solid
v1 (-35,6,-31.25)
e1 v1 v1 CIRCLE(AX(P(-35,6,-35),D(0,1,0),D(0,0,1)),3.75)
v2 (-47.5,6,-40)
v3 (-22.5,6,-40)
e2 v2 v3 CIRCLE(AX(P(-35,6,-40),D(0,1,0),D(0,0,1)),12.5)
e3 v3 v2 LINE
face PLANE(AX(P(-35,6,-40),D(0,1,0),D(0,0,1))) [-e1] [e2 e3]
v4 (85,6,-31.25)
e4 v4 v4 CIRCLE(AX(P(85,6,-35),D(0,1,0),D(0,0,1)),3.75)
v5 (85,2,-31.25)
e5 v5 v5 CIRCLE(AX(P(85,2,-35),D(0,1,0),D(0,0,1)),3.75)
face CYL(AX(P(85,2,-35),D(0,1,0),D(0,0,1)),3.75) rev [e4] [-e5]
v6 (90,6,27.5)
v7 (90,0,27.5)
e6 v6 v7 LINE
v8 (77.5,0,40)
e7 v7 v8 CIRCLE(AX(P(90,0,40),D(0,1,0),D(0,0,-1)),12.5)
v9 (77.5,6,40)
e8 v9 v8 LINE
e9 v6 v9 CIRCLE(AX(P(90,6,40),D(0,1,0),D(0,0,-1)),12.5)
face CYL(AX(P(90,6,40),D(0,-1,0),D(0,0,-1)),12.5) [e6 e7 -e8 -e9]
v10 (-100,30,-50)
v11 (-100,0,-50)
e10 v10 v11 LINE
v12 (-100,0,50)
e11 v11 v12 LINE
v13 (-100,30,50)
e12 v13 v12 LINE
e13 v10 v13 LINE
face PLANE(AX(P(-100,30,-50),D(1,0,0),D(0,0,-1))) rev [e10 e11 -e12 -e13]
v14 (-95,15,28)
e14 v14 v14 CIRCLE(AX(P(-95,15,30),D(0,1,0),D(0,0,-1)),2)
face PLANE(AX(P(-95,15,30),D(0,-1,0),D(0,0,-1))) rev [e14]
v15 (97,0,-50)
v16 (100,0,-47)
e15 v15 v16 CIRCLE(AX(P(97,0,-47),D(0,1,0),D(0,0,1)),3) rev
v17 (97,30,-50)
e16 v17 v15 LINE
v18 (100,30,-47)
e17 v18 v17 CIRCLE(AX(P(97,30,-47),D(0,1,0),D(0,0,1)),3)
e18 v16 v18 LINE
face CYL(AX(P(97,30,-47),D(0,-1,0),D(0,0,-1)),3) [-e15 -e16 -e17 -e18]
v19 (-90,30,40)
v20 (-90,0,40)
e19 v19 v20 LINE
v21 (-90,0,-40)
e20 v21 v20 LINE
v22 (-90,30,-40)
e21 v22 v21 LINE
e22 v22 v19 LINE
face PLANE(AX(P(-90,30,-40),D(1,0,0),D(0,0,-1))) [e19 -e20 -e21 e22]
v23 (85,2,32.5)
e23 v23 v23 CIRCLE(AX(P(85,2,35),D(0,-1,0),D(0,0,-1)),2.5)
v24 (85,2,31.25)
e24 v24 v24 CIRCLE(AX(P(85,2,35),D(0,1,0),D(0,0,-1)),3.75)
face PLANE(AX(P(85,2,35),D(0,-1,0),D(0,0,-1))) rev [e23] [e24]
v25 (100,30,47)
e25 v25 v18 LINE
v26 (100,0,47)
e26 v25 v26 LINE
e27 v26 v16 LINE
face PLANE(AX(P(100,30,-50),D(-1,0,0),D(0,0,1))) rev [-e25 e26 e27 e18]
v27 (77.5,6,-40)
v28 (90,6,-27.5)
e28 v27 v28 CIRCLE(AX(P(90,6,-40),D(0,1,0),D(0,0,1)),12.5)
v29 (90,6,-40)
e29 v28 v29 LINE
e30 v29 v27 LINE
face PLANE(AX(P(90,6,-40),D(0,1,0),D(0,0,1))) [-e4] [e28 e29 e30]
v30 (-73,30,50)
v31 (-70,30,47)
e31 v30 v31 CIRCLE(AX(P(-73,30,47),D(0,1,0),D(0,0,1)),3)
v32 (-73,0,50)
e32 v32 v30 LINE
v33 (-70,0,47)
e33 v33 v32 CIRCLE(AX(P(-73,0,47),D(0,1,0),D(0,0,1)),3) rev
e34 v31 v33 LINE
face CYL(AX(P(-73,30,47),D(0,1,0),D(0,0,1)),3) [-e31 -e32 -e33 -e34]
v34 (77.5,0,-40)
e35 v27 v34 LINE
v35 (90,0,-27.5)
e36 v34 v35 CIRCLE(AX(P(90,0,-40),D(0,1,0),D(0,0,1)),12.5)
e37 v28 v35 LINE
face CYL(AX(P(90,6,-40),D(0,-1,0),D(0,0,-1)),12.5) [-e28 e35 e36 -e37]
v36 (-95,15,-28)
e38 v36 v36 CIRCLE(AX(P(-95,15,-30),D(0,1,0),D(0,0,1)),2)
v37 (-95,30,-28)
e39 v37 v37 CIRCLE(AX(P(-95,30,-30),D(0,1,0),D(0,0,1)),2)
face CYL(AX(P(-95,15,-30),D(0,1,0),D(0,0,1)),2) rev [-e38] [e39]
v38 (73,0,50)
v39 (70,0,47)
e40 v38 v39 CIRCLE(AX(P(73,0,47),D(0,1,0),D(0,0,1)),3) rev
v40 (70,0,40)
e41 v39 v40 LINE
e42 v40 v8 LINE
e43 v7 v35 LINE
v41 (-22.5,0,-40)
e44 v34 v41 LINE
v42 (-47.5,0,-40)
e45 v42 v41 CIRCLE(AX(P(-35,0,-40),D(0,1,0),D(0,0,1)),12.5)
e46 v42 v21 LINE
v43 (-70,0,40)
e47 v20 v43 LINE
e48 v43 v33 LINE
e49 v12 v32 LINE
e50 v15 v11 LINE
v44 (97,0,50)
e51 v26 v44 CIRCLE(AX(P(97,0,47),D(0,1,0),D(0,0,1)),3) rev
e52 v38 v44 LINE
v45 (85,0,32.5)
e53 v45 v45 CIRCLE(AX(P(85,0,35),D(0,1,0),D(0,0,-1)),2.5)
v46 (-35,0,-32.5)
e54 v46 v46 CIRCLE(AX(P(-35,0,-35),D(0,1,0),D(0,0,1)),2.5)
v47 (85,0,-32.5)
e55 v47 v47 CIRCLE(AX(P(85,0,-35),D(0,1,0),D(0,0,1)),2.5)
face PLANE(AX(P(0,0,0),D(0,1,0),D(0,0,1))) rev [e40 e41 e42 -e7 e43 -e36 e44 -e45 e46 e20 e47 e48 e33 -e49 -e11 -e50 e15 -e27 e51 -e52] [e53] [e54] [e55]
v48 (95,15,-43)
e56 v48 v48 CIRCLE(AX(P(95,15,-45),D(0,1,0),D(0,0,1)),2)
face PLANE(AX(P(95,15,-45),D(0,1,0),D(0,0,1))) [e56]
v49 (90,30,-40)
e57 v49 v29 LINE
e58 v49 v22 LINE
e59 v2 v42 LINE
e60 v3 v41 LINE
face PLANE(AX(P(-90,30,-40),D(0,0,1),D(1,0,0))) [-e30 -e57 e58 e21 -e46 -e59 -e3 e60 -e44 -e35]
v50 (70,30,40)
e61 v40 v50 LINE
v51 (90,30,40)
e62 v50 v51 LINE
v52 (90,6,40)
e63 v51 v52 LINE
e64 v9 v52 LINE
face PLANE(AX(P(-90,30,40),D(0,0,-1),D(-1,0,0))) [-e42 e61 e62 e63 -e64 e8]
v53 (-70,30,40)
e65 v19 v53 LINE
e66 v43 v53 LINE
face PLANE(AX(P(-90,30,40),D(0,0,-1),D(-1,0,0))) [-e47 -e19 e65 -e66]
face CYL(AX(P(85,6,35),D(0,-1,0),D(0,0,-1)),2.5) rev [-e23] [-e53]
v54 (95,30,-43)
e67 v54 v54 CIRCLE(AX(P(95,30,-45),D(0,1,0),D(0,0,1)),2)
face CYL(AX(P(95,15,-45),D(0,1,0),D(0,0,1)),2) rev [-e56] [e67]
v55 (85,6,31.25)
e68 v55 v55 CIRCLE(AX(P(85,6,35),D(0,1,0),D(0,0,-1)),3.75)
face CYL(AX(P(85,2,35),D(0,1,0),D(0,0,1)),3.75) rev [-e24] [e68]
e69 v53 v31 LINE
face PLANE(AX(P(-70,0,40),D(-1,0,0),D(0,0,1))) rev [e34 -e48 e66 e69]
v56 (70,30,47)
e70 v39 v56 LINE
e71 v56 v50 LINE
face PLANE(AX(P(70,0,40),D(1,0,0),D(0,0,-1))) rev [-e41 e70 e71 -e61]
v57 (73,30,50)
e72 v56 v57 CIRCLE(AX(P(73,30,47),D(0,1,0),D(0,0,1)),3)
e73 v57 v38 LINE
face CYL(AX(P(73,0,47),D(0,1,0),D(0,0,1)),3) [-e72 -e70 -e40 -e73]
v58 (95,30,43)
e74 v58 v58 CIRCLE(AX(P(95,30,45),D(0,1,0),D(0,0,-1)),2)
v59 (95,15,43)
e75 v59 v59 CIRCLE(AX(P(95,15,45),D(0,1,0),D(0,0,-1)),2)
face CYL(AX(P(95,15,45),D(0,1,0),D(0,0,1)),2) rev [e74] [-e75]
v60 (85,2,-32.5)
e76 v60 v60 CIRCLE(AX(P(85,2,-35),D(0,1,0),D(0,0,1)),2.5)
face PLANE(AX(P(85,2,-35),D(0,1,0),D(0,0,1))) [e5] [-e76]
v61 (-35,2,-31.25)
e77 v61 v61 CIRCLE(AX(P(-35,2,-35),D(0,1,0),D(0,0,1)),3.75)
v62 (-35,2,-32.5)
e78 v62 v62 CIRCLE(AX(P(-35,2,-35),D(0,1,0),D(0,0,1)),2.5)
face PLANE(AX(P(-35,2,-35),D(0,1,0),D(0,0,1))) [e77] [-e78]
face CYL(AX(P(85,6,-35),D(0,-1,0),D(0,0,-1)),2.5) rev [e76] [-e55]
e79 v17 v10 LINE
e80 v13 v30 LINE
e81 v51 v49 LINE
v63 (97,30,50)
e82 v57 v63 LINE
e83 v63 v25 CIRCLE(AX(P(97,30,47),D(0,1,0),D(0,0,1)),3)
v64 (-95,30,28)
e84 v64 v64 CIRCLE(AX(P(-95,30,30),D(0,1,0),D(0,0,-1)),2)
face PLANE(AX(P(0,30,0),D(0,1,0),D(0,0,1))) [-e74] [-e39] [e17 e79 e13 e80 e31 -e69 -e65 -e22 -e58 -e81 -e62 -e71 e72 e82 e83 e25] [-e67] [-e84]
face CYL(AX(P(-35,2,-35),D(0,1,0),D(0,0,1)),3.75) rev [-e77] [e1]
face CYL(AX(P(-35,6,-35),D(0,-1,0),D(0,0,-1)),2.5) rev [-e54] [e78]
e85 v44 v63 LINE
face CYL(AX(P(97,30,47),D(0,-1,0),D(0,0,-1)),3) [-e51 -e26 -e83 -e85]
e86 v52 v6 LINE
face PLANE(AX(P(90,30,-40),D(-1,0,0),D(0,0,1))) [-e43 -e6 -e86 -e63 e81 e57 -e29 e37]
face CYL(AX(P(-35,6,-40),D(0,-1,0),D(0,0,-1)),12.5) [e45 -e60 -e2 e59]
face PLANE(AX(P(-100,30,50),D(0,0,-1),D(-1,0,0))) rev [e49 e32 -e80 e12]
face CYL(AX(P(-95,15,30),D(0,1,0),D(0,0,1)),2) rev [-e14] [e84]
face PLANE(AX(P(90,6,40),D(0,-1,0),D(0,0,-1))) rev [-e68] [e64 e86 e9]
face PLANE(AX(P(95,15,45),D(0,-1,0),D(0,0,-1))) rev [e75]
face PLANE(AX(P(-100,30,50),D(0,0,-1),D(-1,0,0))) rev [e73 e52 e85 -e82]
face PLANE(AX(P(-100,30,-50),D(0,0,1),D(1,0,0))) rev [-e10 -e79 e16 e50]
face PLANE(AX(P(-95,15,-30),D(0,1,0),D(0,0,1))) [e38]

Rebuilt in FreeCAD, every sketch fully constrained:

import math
import FreeCAD as App
import Part
import Sketcher

V = App.Vector
Q = App.Units.Quantity


def edges_at(feature, points):
    """Names of the edges that pass closest to the given points."""
    edges = feature.Shape.Edges
    near = lambda p: min(range(len(edges)), key=lambda i: edges[i].distToShape(Part.Vertex(*p))[0])
    return sorted({f"Edge{near(p) + 1}" for p in points})


def add_polygon(sketch, points):
    """Adds a closed chain of lines whose ends are joined by coincident constraints."""
    first, n = sketch.GeometryCount, len(points)
    for a, b in zip(points, points[1:] + points[:1]):
        sketch.addGeometry(Part.LineSegment(App.Vector(*a, 0), App.Vector(*b, 0)), False)
    for i in range(n):
        sketch.addConstraint(Sketcher.Constraint("Coincident", first + i, 2, first + (i + 1) % n, 1))

doc = App.newDocument("Part")
params = doc.addObject("Spreadsheet::Sheet", "Params")
for row, (alias, value) in enumerate([
    ("sketch1_width", "200 mm"),
    ("sketch1_width2", "180 mm"),
    ("sketch1_height", "100 mm"),
    ("sketch1_height2", "80 mm"),
    ("pad1_length", "30 mm"),
    ("sketch2_diameter", "5 mm"),
    ("sketch2_radius", "12.5 mm"),
    ("pad2_length", "6 mm"),
    ("sketch3_diameter", "7.5 mm"),
    ("pocket1_length", "4 mm"),
    ("sketch4_diameter", "4 mm"),
    ("pocket2_length", "15 mm"),
    ("sketch5_width", "140 mm"),
    ("sketch5_height", "10 mm"),
    ("fillet_radius", "3 mm"),
], start=1):
    params.set(f"A{row}", alias)
    params.set(f"B{row}", "=" + value)
    params.setAlias(f"B{row}", alias)

body = doc.addObject("PartDesign::Body", "Body")

# Sketch on XZ plane
sketch1 = body.newObject("Sketcher::SketchObject", "Sketch")
sketch1.AttachmentSupport = (doc.getObject("XZ_Plane"), [""])
sketch1.MapMode = "FlatFace"
add_polygon(sketch1, [(-100, -50), (-100, 50), (100, 50), (100, -50)])  # lines 0-3
add_polygon(sketch1, [(90, 40), (-90, 40), (-90, -40), (90, -40)])  # lines 4-7
sketch1.addConstraint([
    Sketcher.Constraint("Vertical", 0),
    Sketcher.Constraint("Horizontal", 1),
    Sketcher.Constraint("Vertical", 2),
    Sketcher.Constraint("Horizontal", 3),
    Sketcher.Constraint("Horizontal", 4),
    Sketcher.Constraint("Vertical", 5),
    Sketcher.Constraint("Horizontal", 6),
    Sketcher.Constraint("Vertical", 7),
    Sketcher.Constraint("Symmetric", 0, 2, 2, 2, -1, 1),
    Sketcher.Constraint("Symmetric", 4, 2, 6, 2, -1, 1),
    Sketcher.Constraint("DistanceX", 1, 1, 1, 2, Q("200 mm")),
    Sketcher.Constraint("DistanceX", 4, 2, 4, 1, Q("180 mm")),
    Sketcher.Constraint("DistanceY", 0, 1, 0, 2, Q("100 mm")),
    Sketcher.Constraint("DistanceY", 5, 2, 5, 1, Q("80 mm")),
])
sketch1.setExpression("Constraints[18]", "Params.sketch1_width")
sketch1.setExpression("Constraints[19]", "Params.sketch1_width2")
sketch1.setExpression("Constraints[20]", "Params.sketch1_height")
sketch1.setExpression("Constraints[21]", "Params.sketch1_height2")
pad1 = body.newObject("PartDesign::Pad", "Pad")
pad1.Profile = sketch1
pad1.setExpression("Length", "Params.pad1_length")
pad1.Reversed = True

# Sketch on XZ plane
sketch2 = body.newObject("Sketcher::SketchObject", "Sketch001")
sketch2.AttachmentSupport = (doc.getObject("XZ_Plane"), [""])
sketch2.MapMode = "FlatFace"
sketch2.addGeometry([
    Part.LineSegment(V(90, -40, 0), V(77.5, -40, 0)),  # 0
    Part.ArcOfCircle(Part.Circle(V(90, -40, 0), V(0, 0, 1), 12.5), math.radians(90), math.radians(180)),  # 1
    Part.LineSegment(V(90, -27.5, 0), V(90, -40, 0)),  # 2
    Part.Circle(V(85, -35, 0), V(0, 0, 1), 2.5),  # 3
    Part.LineSegment(V(90, 40, 0), V(90, 27.5, 0)),  # 4
    Part.ArcOfCircle(Part.Circle(V(90, 40, 0), V(0, 0, 1), 12.5), math.radians(180), math.radians(270)),  # 5
    Part.LineSegment(V(77.5, 40, 0), V(90, 40, 0)),  # 6
    Part.Circle(V(85, 35, 0), V(0, 0, 1), 2.5),  # 7
    Part.LineSegment(V(-22.5, -40, 0), V(-47.5, -40, 0)),  # 8
    Part.ArcOfCircle(Part.Circle(V(-35, -40, 0), V(0, 0, 1), 12.5), math.radians(0), math.radians(180)),  # 9
    Part.Circle(V(-35, -35, 0), V(0, 0, 1), 2.5),  # 10
], False)
sketch2.addConstraint([
    Sketcher.Constraint("Coincident", 0, 2, 1, 2),
    Sketcher.Constraint("Coincident", 1, 1, 2, 1),
    Sketcher.Constraint("Coincident", 2, 2, 0, 1),
    Sketcher.Constraint("Coincident", 4, 2, 5, 2),
    Sketcher.Constraint("Coincident", 5, 1, 6, 1),
    Sketcher.Constraint("Coincident", 6, 2, 4, 1),
    Sketcher.Constraint("Coincident", 8, 1, 9, 1),
    Sketcher.Constraint("Coincident", 9, 2, 8, 2),
    Sketcher.Constraint("Horizontal", 0),
    Sketcher.Constraint("Vertical", 2),
    Sketcher.Constraint("Vertical", 4),
    Sketcher.Constraint("Horizontal", 6),
    Sketcher.Constraint("Horizontal", 8),
    Sketcher.Constraint("Coincident", 2, 2, 1, 3),
    Sketcher.Constraint("Coincident", 6, 2, 5, 3),
    Sketcher.Constraint("Equal", 1, 5),
    Sketcher.Constraint("Equal", 3, 7),
    Sketcher.Constraint("Equal", 5, 9),
    Sketcher.Constraint("Equal", 7, 10),
    Sketcher.Constraint("Symmetric", 1, 3, 5, 3, -1),
    Sketcher.Constraint("Symmetric", 3, 3, 7, 3, -1),
    Sketcher.Constraint("Horizontal", 1, 3, 9, 3),
    Sketcher.Constraint("Horizontal", 3, 3, 10, 3),
    Sketcher.Constraint("Horizontal", 2, 2, 8, 1),
    Sketcher.Constraint("Vertical", 9, 3, 10, 3),
    Sketcher.Constraint("Diameter", 3, Q("5 mm")),
    Sketcher.Constraint("Radius", 1, Q("12.5 mm")),
    Sketcher.Constraint("DistanceX", -1, 1, 1, 3, Q("90 mm")),
    Sketcher.Constraint("DistanceY", 1, 3, -1, 1, Q("40 mm")),
    Sketcher.Constraint("DistanceX", -1, 1, 3, 3, Q("85 mm")),
    Sketcher.Constraint("DistanceY", 3, 3, -1, 1, Q("35 mm")),
    Sketcher.Constraint("DistanceX", 9, 3, -1, 1, Q("35 mm")),
])
sketch2.setExpression("Constraints[25]", "Params.sketch2_diameter")
sketch2.setExpression("Constraints[26]", "Params.sketch2_radius")
pad2 = body.newObject("PartDesign::Pad", "Pad001")
pad2.Profile = sketch2
pad2.setExpression("Length", "Params.pad2_length")
pad2.Reversed = True

# Sketch on XZ plane
sketch3 = body.newObject("Sketcher::SketchObject", "Sketch002")
sketch3.AttachmentSupport = (doc.getObject("XZ_Plane"), [""])
sketch3.MapMode = "FlatFace"
sketch3.AttachmentOffset = App.Placement(V(0, 0, -6), App.Rotation())
sketch3.addGeometry([
    Part.Circle(V(-35, -35, 0), V(0, 0, 1), 3.8),
    Part.Circle(V(85, -35, 0), V(0, 0, 1), 3.8),
    Part.Circle(V(85, 35, 0), V(0, 0, 1), 3.8),
], False)
sketch3.addConstraint([
    Sketcher.Constraint("Equal", 0, 1),
    Sketcher.Constraint("Equal", 1, 2),
    Sketcher.Constraint("Symmetric", 1, 3, 2, 3, -1),
    Sketcher.Constraint("Horizontal", 0, 3, 1, 3),
    Sketcher.Constraint("Diameter", 0, Q("7.5 mm")),
    Sketcher.Constraint("DistanceX", 0, 3, -1, 1, Q("35 mm")),
    Sketcher.Constraint("DistanceY", 0, 3, -1, 1, Q("35 mm")),
    Sketcher.Constraint("DistanceX", -1, 1, 1, 3, Q("85 mm")),
])
sketch3.setExpression("Constraints[4]", "Params.sketch3_diameter")
pocket1 = body.newObject("PartDesign::Pocket", "Pocket")
pocket1.Profile = sketch3
pocket1.setExpression("Length", "Params.pocket1_length")
pocket1.Reversed = True

# Sketch on XZ plane
sketch4 = body.newObject("Sketcher::SketchObject", "Sketch003")
sketch4.AttachmentSupport = (doc.getObject("XZ_Plane"), [""])
sketch4.MapMode = "FlatFace"
sketch4.AttachmentOffset = App.Placement(V(0, 0, -30), App.Rotation())
sketch4.addGeometry([
    Part.Circle(V(95, -45, 0), V(0, 0, 1), 2),
    Part.Circle(V(95, 45, 0), V(0, 0, 1), 2),
    Part.Circle(V(-95, -30, 0), V(0, 0, 1), 2),
    Part.Circle(V(-95, 30, 0), V(0, 0, 1), 2),
], False)
sketch4.addConstraint([
    Sketcher.Constraint("Equal", 0, 1),
    Sketcher.Constraint("Equal", 1, 2),
    Sketcher.Constraint("Equal", 2, 3),
    Sketcher.Constraint("Symmetric", 0, 3, 1, 3, -1),
    Sketcher.Constraint("Symmetric", 2, 3, 3, 3, -1),
    Sketcher.Constraint("Diameter", 0, Q("4 mm")),
    Sketcher.Constraint("DistanceX", -1, 1, 0, 3, Q("95 mm")),
    Sketcher.Constraint("DistanceY", 0, 3, -1, 1, Q("45 mm")),
    Sketcher.Constraint("DistanceX", 2, 3, -1, 1, Q("95 mm")),
    Sketcher.Constraint("DistanceY", 2, 3, -1, 1, Q("30 mm")),
])
sketch4.setExpression("Constraints[5]", "Params.sketch4_diameter")
pocket2 = body.newObject("PartDesign::Pocket", "Pocket001")
pocket2.Profile = sketch4
pocket2.setExpression("Length", "Params.pocket2_length")
pocket2.Reversed = True

# Sketch on XZ plane
sketch5 = body.newObject("Sketcher::SketchObject", "Sketch004")
sketch5.AttachmentSupport = (doc.getObject("XZ_Plane"), [""])
sketch5.MapMode = "FlatFace"
sketch5.AttachmentOffset = App.Placement(V(0, 0, -30), App.Rotation())
add_polygon(sketch5, [(-70, 40), (-70, 50), (70, 50), (70, 40)])  # lines 0-3
sketch5.addConstraint([
    Sketcher.Constraint("Vertical", 0),
    Sketcher.Constraint("Horizontal", 1),
    Sketcher.Constraint("Vertical", 2),
    Sketcher.Constraint("Horizontal", 3),
    Sketcher.Constraint("DistanceX", 1, 1, 1, 2, Q("140 mm")),
    Sketcher.Constraint("DistanceY", 0, 1, 0, 2, Q("10 mm")),
    Sketcher.Constraint("DistanceX", 0, 2, -1, 1, Q("70 mm")),
    Sketcher.Constraint("DistanceY", -1, 1, 0, 2, Q("50 mm")),
])
sketch5.setExpression("Constraints[8]", "Params.sketch5_width")
sketch5.setExpression("Constraints[9]", "Params.sketch5_height")
pocket3 = body.newObject("PartDesign::Pocket", "Pocket002")
pocket3.Profile = sketch5
pocket3.Type = "ThroughAll"
pocket3.Reversed = True
doc.recompute()

fillet = body.newObject("PartDesign::Fillet", "Fillet")
fillet.Base = (pocket3, edges_at(pocket3, [
    (70, 15, 50),
    (-70, 15, 50),
    (100, 15, 50),
    (100, 15, -50),
]))
fillet.setExpression("Radius", "Params.fillet_radius")

doc.recompute()
